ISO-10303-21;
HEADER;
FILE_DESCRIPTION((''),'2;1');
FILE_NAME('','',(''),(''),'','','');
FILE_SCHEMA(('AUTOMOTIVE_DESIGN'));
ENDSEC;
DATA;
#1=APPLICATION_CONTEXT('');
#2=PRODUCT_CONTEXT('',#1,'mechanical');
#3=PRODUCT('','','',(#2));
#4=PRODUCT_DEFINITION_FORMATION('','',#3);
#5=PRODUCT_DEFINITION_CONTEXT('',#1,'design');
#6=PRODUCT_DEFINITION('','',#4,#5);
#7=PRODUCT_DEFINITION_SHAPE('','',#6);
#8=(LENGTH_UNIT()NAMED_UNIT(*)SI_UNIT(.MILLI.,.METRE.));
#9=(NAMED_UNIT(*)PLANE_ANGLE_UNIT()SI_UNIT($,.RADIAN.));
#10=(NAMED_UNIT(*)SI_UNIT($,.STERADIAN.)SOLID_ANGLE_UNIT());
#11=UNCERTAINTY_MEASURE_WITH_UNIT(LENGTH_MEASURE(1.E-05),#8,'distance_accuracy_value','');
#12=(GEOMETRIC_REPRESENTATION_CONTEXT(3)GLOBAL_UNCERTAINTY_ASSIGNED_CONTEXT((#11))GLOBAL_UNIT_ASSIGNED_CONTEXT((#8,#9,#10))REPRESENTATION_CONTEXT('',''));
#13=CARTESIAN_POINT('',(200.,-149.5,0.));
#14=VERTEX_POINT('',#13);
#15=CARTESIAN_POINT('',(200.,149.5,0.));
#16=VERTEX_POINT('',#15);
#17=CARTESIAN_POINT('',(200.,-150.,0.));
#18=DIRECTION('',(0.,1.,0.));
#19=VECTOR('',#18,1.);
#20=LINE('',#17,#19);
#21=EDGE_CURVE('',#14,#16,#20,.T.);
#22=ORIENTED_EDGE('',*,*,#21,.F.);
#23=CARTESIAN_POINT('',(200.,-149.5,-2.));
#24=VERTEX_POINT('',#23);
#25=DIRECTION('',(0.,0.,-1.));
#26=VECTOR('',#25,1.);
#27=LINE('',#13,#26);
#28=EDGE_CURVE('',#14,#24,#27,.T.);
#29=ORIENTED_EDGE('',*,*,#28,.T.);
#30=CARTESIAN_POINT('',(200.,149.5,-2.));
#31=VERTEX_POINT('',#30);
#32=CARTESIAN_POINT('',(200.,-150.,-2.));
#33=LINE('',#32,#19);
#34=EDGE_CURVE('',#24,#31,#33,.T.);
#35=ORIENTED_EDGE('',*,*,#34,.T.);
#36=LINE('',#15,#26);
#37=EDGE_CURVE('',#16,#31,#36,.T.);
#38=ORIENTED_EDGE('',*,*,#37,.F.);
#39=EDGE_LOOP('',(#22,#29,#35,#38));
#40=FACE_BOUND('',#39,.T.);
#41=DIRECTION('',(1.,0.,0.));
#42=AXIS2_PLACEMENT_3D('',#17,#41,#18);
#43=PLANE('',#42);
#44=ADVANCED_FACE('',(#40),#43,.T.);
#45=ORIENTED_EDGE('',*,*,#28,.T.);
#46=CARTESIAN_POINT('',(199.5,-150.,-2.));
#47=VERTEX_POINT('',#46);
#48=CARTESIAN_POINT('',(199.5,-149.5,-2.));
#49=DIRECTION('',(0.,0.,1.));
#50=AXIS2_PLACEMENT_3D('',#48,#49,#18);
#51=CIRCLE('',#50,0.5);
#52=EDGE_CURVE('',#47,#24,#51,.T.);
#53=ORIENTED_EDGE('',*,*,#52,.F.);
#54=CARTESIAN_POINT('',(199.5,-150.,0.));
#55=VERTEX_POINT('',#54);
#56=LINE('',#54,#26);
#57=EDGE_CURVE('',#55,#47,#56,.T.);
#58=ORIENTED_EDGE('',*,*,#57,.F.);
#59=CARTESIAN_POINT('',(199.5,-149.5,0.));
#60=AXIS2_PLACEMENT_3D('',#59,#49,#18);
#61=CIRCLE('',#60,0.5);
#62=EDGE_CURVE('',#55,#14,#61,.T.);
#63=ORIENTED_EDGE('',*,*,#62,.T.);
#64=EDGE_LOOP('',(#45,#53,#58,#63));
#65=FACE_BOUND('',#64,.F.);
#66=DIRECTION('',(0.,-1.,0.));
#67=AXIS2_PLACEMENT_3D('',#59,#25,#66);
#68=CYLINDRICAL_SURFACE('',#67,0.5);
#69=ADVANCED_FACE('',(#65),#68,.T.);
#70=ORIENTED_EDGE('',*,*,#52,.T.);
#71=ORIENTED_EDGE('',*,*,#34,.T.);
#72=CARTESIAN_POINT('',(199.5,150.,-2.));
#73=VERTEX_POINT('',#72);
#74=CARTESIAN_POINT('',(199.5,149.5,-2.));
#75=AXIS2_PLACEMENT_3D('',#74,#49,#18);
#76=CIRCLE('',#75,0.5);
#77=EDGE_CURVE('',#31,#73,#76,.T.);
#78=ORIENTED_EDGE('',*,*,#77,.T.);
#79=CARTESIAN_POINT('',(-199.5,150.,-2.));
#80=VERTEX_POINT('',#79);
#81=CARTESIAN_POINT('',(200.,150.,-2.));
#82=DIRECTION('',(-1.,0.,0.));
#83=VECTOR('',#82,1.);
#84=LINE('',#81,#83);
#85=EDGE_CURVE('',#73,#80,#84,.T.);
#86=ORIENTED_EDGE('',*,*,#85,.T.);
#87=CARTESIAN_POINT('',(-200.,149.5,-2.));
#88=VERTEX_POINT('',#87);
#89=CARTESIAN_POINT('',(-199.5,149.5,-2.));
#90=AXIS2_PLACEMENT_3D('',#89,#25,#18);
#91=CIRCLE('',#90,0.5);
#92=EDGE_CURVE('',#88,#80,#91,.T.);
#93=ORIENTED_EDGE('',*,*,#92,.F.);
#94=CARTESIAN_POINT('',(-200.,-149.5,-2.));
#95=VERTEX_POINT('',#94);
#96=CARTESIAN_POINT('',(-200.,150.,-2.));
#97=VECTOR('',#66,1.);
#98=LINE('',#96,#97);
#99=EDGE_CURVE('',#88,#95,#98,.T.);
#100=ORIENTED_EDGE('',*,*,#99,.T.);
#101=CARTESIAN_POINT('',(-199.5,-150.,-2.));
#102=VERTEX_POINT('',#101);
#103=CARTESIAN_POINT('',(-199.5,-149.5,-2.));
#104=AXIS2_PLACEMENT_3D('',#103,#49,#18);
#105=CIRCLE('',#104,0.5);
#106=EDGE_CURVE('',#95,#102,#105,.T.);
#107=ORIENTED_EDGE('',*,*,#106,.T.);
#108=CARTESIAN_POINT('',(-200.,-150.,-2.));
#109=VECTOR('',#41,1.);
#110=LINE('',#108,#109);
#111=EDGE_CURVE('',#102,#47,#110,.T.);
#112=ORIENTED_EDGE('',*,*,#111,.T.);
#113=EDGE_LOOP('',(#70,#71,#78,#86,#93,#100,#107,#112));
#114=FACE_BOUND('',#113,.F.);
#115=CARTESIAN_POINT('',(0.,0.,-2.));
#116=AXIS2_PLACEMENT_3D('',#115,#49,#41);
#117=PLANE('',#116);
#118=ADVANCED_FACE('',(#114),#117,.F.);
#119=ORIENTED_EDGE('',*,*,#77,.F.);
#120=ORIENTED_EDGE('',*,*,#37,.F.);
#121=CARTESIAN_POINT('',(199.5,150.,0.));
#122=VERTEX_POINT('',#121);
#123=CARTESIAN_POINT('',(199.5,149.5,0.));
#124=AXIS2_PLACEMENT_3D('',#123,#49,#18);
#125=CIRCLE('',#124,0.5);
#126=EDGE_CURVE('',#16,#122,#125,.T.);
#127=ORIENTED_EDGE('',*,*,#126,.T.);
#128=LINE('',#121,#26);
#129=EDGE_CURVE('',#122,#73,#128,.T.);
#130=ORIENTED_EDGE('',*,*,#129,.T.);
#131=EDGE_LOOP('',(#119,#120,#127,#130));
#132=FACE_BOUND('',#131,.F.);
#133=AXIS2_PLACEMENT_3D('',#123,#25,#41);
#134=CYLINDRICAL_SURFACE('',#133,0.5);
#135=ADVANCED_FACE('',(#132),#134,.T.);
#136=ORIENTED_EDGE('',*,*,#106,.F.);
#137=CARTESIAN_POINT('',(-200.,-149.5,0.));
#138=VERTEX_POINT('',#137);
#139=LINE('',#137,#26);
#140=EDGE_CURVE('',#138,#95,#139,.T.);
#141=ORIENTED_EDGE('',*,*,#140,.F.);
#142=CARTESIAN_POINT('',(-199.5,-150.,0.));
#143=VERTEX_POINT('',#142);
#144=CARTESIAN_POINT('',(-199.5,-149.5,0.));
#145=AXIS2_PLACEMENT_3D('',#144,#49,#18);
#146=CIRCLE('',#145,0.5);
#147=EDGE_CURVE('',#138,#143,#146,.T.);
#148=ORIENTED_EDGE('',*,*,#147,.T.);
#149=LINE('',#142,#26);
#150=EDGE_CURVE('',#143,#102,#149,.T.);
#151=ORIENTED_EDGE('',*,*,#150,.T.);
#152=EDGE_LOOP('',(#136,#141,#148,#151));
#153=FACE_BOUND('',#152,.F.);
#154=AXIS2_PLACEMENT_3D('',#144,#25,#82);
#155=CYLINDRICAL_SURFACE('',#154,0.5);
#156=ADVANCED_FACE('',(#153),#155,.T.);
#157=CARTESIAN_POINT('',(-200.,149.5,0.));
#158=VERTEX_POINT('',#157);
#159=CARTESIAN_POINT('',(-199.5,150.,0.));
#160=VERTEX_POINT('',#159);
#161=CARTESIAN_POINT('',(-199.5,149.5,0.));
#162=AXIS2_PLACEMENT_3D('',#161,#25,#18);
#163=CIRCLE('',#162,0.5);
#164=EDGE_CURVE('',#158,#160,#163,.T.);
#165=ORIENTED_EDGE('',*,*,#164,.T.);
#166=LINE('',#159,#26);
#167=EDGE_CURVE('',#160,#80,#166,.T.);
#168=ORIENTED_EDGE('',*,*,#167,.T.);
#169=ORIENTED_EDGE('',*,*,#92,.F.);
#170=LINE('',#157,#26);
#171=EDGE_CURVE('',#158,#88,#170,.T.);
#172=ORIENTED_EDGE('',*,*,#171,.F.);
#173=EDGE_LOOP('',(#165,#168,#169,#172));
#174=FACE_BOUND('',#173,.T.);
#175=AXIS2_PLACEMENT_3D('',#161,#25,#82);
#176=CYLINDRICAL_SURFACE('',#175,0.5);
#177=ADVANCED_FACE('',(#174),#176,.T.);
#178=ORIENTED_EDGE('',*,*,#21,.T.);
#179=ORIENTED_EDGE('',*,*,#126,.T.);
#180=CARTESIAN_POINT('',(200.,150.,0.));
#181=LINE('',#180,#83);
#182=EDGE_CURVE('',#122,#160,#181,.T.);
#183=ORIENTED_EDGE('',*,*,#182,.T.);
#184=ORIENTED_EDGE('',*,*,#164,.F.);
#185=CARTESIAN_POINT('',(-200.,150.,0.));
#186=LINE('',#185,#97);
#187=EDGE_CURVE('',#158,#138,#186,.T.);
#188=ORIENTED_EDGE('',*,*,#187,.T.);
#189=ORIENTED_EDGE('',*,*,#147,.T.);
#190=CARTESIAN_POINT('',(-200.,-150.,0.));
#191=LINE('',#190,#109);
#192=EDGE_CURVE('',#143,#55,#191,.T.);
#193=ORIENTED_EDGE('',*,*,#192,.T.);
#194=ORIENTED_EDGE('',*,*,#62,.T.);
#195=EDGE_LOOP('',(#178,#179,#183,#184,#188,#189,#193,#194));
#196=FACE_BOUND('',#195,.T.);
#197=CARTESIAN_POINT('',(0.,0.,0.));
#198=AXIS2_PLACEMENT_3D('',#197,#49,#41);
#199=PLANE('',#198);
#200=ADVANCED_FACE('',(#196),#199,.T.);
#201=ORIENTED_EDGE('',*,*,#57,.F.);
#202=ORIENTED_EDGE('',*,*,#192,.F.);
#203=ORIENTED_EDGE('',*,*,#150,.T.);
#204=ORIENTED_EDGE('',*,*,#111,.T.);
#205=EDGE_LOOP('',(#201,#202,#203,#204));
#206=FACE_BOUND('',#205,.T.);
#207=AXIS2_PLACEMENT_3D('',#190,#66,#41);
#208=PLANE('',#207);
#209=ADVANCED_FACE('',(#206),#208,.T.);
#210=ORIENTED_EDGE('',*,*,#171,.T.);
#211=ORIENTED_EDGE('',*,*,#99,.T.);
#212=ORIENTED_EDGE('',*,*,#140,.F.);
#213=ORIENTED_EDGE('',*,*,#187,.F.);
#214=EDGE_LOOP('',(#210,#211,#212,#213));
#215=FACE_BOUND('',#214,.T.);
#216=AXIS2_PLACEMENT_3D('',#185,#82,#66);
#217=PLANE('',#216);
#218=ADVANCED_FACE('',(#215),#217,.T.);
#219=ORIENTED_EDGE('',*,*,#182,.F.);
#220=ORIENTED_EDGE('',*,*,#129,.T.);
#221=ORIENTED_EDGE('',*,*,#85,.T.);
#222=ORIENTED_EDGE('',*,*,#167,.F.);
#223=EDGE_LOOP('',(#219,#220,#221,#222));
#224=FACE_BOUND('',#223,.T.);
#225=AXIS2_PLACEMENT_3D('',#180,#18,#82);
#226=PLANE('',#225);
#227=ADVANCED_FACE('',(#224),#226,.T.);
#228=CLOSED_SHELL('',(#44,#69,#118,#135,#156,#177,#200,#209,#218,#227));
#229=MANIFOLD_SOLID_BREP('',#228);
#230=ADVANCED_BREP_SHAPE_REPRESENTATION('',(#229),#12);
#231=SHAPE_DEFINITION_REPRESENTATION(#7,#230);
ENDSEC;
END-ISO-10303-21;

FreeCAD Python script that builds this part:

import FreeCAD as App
import Part
import Sketcher
Q = App.Units.Quantity


def edges_at(feature, points):
    """Names of the edges that pass closest to the given points."""
    edges = feature.Shape.Edges
    near = lambda p: min(range(len(edges)), key=lambda i: edges[i].distToShape(Part.Vertex(*p))[0])
    return sorted({f"Edge{near(p) + 1}" for p in points})

doc = App.newDocument("Part")
body = doc.addObject("PartDesign::Body", "Body")

# Sketch on XY plane
sketch1 = body.newObject("Sketcher::SketchObject", "Sketch")
sketch1.AttachmentSupport = (doc.getObject("XY_Plane"), [""])
sketch1.MapMode = "FlatFace"
sketch1.addGeometry([
    Part.LineSegment(App.Vector(200, 150, 0), App.Vector(-200, 150, 0)),
    Part.LineSegment(App.Vector(-200, 150, 0), App.Vector(-200, -150, 0)),
    Part.LineSegment(App.Vector(-200, -150, 0), App.Vector(200, -150, 0)),
    Part.LineSegment(App.Vector(200, -150, 0), App.Vector(200, 150, 0)),
], False)
sketch1.addConstraint([
    Sketcher.Constraint("Coincident", 0, 2, 1, 1),
    Sketcher.Constraint("Coincident", 1, 2, 2, 1),
    Sketcher.Constraint("Coincident", 2, 2, 3, 1),
    Sketcher.Constraint("Coincident", 3, 2, 0, 1),
    Sketcher.Constraint("Horizontal", 0),
    Sketcher.Constraint("Vertical", 1),
    Sketcher.Constraint("Horizontal", 2),
    Sketcher.Constraint("Vertical", 3),
    Sketcher.Constraint("Symmetric", 0, 2, 2, 2, -1, 1),
    Sketcher.Constraint("DistanceX", 0, 2, 0, 1, Q("400 mm")),
    Sketcher.Constraint("DistanceY", 1, 2, 1, 1, Q("300 mm")),
])
pad1 = body.newObject("PartDesign::Pad", "Pad")
pad1.Profile = sketch1
pad1.Length = 2
pad1.Reversed = True
doc.recompute()

fillet = body.newObject("PartDesign::Fillet", "Fillet")
fillet.Base = (pad1, edges_at(pad1, [
    (200, 150, -1),
    (200, -150, -1),
    (-200, -150, -1),
    (-200, 150, -1),
]))
fillet.Radius = 0.5

doc.recompute()
